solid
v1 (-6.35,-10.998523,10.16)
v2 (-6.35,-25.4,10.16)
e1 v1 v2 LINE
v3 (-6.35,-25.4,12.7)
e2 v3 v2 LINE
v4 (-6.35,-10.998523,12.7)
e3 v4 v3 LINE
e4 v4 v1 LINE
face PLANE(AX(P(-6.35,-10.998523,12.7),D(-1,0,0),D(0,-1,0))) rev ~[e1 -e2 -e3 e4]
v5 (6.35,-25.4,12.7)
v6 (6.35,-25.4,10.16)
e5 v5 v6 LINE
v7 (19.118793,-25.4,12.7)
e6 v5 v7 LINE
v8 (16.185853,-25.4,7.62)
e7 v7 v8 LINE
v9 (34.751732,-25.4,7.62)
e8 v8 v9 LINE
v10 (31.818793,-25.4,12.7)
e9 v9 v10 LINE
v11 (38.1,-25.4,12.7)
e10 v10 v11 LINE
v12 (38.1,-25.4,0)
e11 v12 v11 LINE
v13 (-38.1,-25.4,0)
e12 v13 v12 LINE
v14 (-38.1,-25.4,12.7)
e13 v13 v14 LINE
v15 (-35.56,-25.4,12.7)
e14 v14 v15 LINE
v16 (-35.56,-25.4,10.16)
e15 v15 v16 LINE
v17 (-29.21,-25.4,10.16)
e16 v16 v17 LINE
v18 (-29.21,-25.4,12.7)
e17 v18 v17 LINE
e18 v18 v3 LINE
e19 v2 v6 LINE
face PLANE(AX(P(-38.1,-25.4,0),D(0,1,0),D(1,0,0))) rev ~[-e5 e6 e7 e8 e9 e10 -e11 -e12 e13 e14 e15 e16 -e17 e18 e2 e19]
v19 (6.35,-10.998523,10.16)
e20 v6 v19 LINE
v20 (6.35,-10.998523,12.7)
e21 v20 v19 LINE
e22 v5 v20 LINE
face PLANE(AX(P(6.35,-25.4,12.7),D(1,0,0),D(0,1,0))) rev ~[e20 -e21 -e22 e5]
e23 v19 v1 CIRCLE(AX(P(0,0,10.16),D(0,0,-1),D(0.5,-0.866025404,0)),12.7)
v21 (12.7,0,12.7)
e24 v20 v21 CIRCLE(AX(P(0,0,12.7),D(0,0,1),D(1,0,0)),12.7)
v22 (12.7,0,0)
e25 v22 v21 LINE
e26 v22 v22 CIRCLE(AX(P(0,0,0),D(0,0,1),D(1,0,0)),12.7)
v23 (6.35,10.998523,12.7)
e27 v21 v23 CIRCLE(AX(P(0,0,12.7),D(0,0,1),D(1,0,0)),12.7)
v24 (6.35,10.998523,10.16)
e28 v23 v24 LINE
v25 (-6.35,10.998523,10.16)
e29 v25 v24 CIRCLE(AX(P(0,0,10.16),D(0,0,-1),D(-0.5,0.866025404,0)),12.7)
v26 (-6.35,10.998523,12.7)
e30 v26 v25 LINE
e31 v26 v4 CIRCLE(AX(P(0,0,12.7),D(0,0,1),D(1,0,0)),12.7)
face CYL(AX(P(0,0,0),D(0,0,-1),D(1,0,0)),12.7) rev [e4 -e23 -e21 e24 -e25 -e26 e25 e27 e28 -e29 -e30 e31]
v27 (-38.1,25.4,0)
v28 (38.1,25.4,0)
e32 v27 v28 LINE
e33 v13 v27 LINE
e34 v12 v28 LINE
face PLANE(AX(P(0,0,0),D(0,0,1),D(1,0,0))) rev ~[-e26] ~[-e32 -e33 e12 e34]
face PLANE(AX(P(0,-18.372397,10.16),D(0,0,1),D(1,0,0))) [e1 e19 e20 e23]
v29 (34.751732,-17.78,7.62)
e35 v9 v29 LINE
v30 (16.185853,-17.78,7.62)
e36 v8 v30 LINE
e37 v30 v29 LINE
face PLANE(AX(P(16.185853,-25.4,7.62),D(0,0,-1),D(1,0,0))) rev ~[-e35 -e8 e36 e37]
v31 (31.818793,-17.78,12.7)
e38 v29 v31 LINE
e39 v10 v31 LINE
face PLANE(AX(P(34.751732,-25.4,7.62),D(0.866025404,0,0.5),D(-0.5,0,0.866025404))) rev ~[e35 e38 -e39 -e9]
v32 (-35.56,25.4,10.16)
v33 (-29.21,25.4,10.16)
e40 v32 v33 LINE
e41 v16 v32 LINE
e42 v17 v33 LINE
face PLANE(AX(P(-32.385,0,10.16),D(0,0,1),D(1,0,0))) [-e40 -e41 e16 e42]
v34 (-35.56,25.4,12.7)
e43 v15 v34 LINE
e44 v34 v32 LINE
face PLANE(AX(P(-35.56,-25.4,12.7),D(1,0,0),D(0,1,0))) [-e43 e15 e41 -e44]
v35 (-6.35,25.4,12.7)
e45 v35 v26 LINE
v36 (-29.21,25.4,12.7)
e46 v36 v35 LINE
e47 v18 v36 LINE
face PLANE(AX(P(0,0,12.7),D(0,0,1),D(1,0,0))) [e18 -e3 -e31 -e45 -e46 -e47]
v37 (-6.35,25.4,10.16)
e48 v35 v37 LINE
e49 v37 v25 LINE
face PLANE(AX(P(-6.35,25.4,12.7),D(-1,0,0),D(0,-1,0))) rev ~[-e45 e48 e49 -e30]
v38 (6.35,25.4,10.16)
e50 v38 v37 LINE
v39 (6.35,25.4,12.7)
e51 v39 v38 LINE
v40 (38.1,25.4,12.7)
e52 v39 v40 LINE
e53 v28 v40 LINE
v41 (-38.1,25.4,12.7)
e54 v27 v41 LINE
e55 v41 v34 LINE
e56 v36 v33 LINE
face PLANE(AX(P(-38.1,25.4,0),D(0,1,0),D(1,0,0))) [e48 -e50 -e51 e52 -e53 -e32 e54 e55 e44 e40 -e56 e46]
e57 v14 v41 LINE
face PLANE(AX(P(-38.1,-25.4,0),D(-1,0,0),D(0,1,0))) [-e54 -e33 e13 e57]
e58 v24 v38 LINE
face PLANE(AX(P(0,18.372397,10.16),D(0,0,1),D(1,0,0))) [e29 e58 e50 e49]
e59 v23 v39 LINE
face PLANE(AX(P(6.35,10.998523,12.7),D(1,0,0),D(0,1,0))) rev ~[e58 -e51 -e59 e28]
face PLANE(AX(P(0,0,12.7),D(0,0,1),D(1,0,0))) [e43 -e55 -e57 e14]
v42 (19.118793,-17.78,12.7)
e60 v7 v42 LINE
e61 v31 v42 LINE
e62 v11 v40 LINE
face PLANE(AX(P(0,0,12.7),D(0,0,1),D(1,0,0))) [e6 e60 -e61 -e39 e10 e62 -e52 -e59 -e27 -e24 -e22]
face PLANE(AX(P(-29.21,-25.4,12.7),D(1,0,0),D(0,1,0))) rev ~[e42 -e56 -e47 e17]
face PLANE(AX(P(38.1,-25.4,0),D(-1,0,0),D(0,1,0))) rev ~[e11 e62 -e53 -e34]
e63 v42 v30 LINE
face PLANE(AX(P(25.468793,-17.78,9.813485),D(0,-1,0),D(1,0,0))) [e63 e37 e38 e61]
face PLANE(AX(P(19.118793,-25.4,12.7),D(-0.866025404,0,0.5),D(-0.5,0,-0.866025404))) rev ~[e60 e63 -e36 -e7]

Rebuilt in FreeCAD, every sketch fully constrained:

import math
import FreeCAD as App
import Part
import Sketcher

V = App.Vector
Q = App.Units.Quantity


def add_polygon(sketch, points):
    """Adds a closed chain of lines whose ends are joined by coincident constraints."""
    first, n = sketch.GeometryCount, len(points)
    for a, b in zip(points, points[1:] + points[:1]):
        sketch.addGeometry(Part.LineSegment(App.Vector(*a, 0), App.Vector(*b, 0)), False)
    for i in range(n):
        sketch.addConstraint(Sketcher.Constraint("Coincident", first + i, 2, first + (i + 1) % n, 1))

doc = App.newDocument("Part")
body = doc.addObject("PartDesign::Body", "Body")

sketch1 = body.newObject("Sketcher::SketchObject", "Sketch")
sketch1.AttachmentSupport = (doc.getObject("XY_Plane"), [""])
sketch1.MapMode = "FlatFace"
add_polygon(sketch1, [(-38, 25), (-38, -25), (38, -25), (38, 25)])
sketch1.addGeometry(Part.Circle(V(0, 0, 0), V(0, 0, 1), 13), False)
sketch1.addConstraint([
    Sketcher.Constraint("Vertical", 0),
    Sketcher.Constraint("Horizontal", 1),
    Sketcher.Constraint("Vertical", 2),
    Sketcher.Constraint("Horizontal", 3),
    Sketcher.Constraint("Coincident", 4, 3, -1, 1),
    Sketcher.Constraint("Symmetric", 0, 2, 2, 2, -1, 1),
    Sketcher.Constraint("Diameter", 4, Q("1 in")),
    Sketcher.Constraint("DistanceX", 1, 1, 1, 2, Q("3 in")),
    Sketcher.Constraint("DistanceY", 0, 2, 0, 1, Q("2 in")),
])
pad1 = body.newObject("PartDesign::Pad", "Pad")
pad1.Profile = sketch1
pad1.Length = Q("0.5 in")

sketch2 = body.newObject("Sketcher::SketchObject", "Sketch001")
sketch2.AttachmentSupport = (doc.getObject("XY_Plane"), [""])
sketch2.MapMode = "FlatFace"
sketch2.AttachmentOffset = App.Placement(V(0, 0, 0.5 * 25.4), App.Rotation())
add_polygon(sketch2, [(-36, 25), (-36, -25), (-29, -25), (-29, 25)])
sketch2.addGeometry(Part.LineSegment(V(6, 25, 0), V(-6, 25, 0)), False)
sketch2.addGeometry(Part.LineSegment(V(-6, 25, 0), V(-6, 11, 0)), False)
sketch2.addGeometry(Part.ArcOfCircle(Part.Circle(V(0, 0, 0), V(0, 0, 1), 13), math.radians(60), math.radians(120)), False)
sketch2.addGeometry(Part.LineSegment(V(6, 11, 0), V(6, 25, 0)), False)
sketch2.addGeometry(Part.LineSegment(V(-6, -11, 0), V(-6, -25, 0)), False)
sketch2.addGeometry(Part.LineSegment(V(-6, -25, 0), V(6, -25, 0)), False)
sketch2.addGeometry(Part.LineSegment(V(6, -25, 0), V(6, -11, 0)), False)
sketch2.addGeometry(Part.ArcOfCircle(Part.Circle(V(0, 0, 0), V(0, 0, 1), 13), math.radians(-120), math.radians(-60)), False)
sketch2.addConstraint([
    Sketcher.Constraint("Coincident", 4, 2, 5, 1),
    Sketcher.Constraint("Coincident", 5, 2, 6, 2),
    Sketcher.Constraint("Coincident", 6, 1, 7, 1),
    Sketcher.Constraint("Coincident", 7, 2, 4, 1),
    Sketcher.Constraint("Coincident", 8, 2, 9, 1),
    Sketcher.Constraint("Coincident", 9, 2, 10, 1),
    Sketcher.Constraint("Coincident", 10, 2, 11, 2),
    Sketcher.Constraint("Coincident", 11, 1, 8, 1),
    Sketcher.Constraint("Vertical", 0),
    Sketcher.Constraint("Horizontal", 1),
    Sketcher.Constraint("Vertical", 2),
    Sketcher.Constraint("Horizontal", 3),
    Sketcher.Constraint("Horizontal", 4),
    Sketcher.Constraint("Vertical", 5),
    Sketcher.Constraint("Vertical", 7),
    Sketcher.Constraint("Vertical", 8),
    Sketcher.Constraint("Horizontal", 9),
    Sketcher.Constraint("Vertical", 10),
    Sketcher.Constraint("Coincident", 6, 3, -1, 1),
    Sketcher.Constraint("Coincident", 11, 3, -1, 1),
    Sketcher.Constraint("Equal", 6, 11),
    Sketcher.Constraint("Symmetric", 7, 2, 8, 2, -1, 1),
    Sketcher.Constraint("Horizontal", 3, 2, 4, 2),
    Sketcher.Constraint("Horizontal", 5, 2, 6, 1),
    Sketcher.Constraint("Horizontal", 1, 2, 8, 2),
    Sketcher.Constraint("Horizontal", 10, 2, 11, 1),
    Sketcher.Constraint("Radius", 6, Q("0.5 in")),
    Sketcher.Constraint("DistanceY", 0, 2, 0, 1, Q("2 in")),
    Sketcher.Constraint("DistanceX", 4, 2, 4, 1, Q("0.5 in")),
    Sketcher.Constraint("DistanceX", 1, 1, 1, 2, Q("0.25 in")),
    Sketcher.Constraint("DistanceX", 0, 2, -1, 1, Q("1.4 in")),
])
pocket1 = body.newObject("PartDesign::Pocket", "Pocket")
pocket1.Profile = sketch2
pocket1.Length = Q("0.1 in")

sketch3 = body.newObject("Sketcher::SketchObject", "Sketch002")
sketch3.AttachmentSupport = (doc.getObject("XZ_Plane"), [""])
sketch3.MapMode = "FlatFace"
sketch3.AttachmentOffset = App.Placement(V(0, 0, 1 * 25.4), App.Rotation())
add_polygon(sketch3, [(32, 13), (19, 13), (16, 8), (35, 8)])
sketch3.addConstraint([
    Sketcher.Constraint("Horizontal", 0),
    Sketcher.Constraint("Horizontal", 2),
    Sketcher.Constraint("Equal", 1, 3),
    Sketcher.Constraint("DistanceX", 0, 2, 0, 1, Q("0.5 in")),
    Sketcher.Constraint("Angle", 1, Q("-120 deg")),
    Sketcher.Constraint("DistanceY", -1, 1, 0, 2, Q("0.5 in")),
    Sketcher.Constraint("DistanceY", -1, 1, 1, 2, Q("0.3 in")),
    Sketcher.Constraint("DistanceX", -1, 1, 0, 2, Q("19.118793 mm")),
])
pocket2 = body.newObject("PartDesign::Pocket", "Pocket001")
pocket2.Profile = sketch3
pocket2.Length = Q("0.3 in")

doc.recompute()
